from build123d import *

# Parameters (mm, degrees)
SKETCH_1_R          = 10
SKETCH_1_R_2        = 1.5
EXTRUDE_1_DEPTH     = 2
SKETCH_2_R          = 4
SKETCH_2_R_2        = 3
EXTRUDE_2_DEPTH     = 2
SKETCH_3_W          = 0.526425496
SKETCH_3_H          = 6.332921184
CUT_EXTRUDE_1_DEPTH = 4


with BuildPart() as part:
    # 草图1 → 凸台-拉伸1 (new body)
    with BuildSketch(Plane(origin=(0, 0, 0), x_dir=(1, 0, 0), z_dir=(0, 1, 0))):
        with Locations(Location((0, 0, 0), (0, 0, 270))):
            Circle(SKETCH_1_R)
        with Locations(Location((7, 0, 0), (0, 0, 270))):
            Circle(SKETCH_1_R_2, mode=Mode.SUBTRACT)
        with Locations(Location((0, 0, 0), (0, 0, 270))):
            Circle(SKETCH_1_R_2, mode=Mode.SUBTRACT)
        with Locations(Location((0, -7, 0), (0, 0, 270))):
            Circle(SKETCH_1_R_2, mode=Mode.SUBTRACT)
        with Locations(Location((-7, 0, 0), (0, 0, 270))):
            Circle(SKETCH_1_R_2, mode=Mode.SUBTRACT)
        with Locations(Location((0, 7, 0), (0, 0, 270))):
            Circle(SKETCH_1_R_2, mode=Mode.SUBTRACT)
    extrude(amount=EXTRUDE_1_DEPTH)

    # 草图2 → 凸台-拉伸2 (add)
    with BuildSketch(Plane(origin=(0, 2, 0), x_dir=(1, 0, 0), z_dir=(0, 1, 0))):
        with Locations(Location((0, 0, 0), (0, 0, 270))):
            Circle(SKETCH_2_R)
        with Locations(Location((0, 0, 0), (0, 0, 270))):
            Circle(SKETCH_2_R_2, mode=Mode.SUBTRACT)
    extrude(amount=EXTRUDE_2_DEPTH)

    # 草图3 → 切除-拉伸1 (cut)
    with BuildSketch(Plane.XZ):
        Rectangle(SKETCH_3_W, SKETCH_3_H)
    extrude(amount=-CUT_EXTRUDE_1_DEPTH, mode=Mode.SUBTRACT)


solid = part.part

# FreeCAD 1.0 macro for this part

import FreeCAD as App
import Part
import Sketcher

doc = App.newDocument("Part")
body = doc.addObject("PartDesign::Body", "Body")

# Sketch on XZ plane
sketch1 = body.newObject("Sketcher::SketchObject", "Sketch")
sketch1.AttachmentSupport = (doc.getObject("XZ_Plane"), [""])
sketch1.MapMode = "FlatFace"
sketch1.addGeometry(Part.Circle(App.Vector(0, 0, 0), App.Vector(0, 0, 1), 10), False)
sketch1.addGeometry(Part.Circle(App.Vector(0, -7, 0), App.Vector(0, 0, 1), 1.5), False)
sketch1.addGeometry(Part.Circle(App.Vector(-7, 0, 0), App.Vector(0, 0, 1), 1.5), False)
sketch1.addGeometry(Part.Circle(App.Vector(7, 0, 0), App.Vector(0, 0, 1), 1.5), False)
sketch1.addGeometry(Part.Circle(App.Vector(0, 0, 0), App.Vector(0, 0, 1), 1.5), False)
sketch1.addGeometry(Part.Circle(App.Vector(0, 7, 0), App.Vector(0, 0, 1), 1.5), False)
sketch1.addConstraint(Sketcher.Constraint("Coincident", 0, 3, -1, 1))
sketch1.addConstraint(Sketcher.Constraint("Coincident", 4, 3, -1, 1))
sketch1.addConstraint(Sketcher.Constraint("Equal", 1, 2))
sketch1.addConstraint(Sketcher.Constraint("Equal", 2, 3))
sketch1.addConstraint(Sketcher.Constraint("Equal", 3, 4))
sketch1.addConstraint(Sketcher.Constraint("Equal", 4, 5))
sketch1.addConstraint(Sketcher.Constraint("Symmetric", 2, 3, 3, 3, -1, 1))
sketch1.addConstraint(Sketcher.Constraint("Symmetric", 1, 3, 5, 3, -1, 1))
sketch1.addConstraint(Sketcher.Constraint("PointOnObject", 1, 3, -2))
sketch1.addConstraint(Sketcher.Constraint("PointOnObject", 2, 3, -1))
sketch1.addConstraint(Sketcher.Constraint("Diameter", 0, 20.0))
sketch1.addConstraint(Sketcher.Constraint("Diameter", 1, 3.0))
sketch1.addConstraint(Sketcher.Constraint("DistanceY", 1, 3, -1, 1, 7.0))
sketch1.addConstraint(Sketcher.Constraint("DistanceX", 2, 3, -1, 1, 7.0))
pad1 = body.newObject("PartDesign::Pad", "Pad")
pad1.Profile = sketch1
pad1.Length = 2
pad1.Reversed = True

# Sketch on XZ plane
sketch2 = body.newObject("Sketcher::SketchObject", "Sketch001")
sketch2.AttachmentSupport = (doc.getObject("XZ_Plane"), [""])
sketch2.MapMode = "FlatFace"
sketch2.AttachmentOffset = App.Placement(App.Vector(0, 0, -2), App.Rotation())
sketch2.addGeometry(Part.Circle(App.Vector(0, 0, 0), App.Vector(0, 0, 1), 4), False)
sketch2.addGeometry(Part.Circle(App.Vector(0, 0, 0), App.Vector(0, 0, 1), 3), False)
sketch2.addConstraint(Sketcher.Constraint("Coincident", 0, 3, -1, 1))
sketch2.addConstraint(Sketcher.Constraint("Coincident", 1, 3, -1, 1))
sketch2.addConstraint(Sketcher.Constraint("Diameter", 0, 8.0))
sketch2.addConstraint(Sketcher.Constraint("Diameter", 1, 6.0))
pad2 = body.newObject("PartDesign::Pad", "Pad001")
pad2.Profile = sketch2
pad2.Length = 2
pad2.Reversed = True

# Sketch on XZ plane
sketch3 = body.newObject("Sketcher::SketchObject", "Sketch002")
sketch3.AttachmentSupport = (doc.getObject("XZ_Plane"), [""])
sketch3.MapMode = "FlatFace"
sketch3.addGeometry(Part.LineSegment(App.Vector(-0.263213, 3.166461, 0), App.Vector(-0.263213, -3.166461, 0)), False)
sketch3.addGeometry(Part.LineSegment(App.Vector(-0.263213, -3.166461, 0), App.Vector(0.263213, -3.166461, 0)), False)
sketch3.addGeometry(Part.LineSegment(App.Vector(0.263213, -3.166461, 0), App.Vector(0.263213, 3.166461, 0)), False)
sketch3.addGeometry(Part.LineSegment(App.Vector(0.263213, 3.166461, 0), App.Vector(-0.263213, 3.166461, 0)), False)
sketch3.addConstraint(Sketcher.Constraint("Coincident", 0, 2, 1, 1))
sketch3.addConstraint(Sketcher.Constraint("Coincident", 1, 2, 2, 1))
sketch3.addConstraint(Sketcher.Constraint("Coincident", 2, 2, 3, 1))
sketch3.addConstraint(Sketcher.Constraint("Coincident", 3, 2, 0, 1))
sketch3.addConstraint(Sketcher.Constraint("Vertical", 0))
sketch3.addConstraint(Sketcher.Constraint("Horizontal", 1))
sketch3.addConstraint(Sketcher.Constraint("Vertical", 2))
sketch3.addConstraint(Sketcher.Constraint("Horizontal", 3))
sketch3.addConstraint(Sketcher.Constraint("Symmetric", 0, 2, 2, 2, -1, 1))
sketch3.addConstraint(Sketcher.Constraint("DistanceY", 0, 2, 0, 1, 6.332921))
sketch3.addConstraint(Sketcher.Constraint("DistanceX", 1, 1, 1, 2, 0.526425))
pocket1 = body.newObject("PartDesign::Pocket", "Pocket")
pocket1.Profile = sketch3
pocket1.Length = 4

doc.recompute()
